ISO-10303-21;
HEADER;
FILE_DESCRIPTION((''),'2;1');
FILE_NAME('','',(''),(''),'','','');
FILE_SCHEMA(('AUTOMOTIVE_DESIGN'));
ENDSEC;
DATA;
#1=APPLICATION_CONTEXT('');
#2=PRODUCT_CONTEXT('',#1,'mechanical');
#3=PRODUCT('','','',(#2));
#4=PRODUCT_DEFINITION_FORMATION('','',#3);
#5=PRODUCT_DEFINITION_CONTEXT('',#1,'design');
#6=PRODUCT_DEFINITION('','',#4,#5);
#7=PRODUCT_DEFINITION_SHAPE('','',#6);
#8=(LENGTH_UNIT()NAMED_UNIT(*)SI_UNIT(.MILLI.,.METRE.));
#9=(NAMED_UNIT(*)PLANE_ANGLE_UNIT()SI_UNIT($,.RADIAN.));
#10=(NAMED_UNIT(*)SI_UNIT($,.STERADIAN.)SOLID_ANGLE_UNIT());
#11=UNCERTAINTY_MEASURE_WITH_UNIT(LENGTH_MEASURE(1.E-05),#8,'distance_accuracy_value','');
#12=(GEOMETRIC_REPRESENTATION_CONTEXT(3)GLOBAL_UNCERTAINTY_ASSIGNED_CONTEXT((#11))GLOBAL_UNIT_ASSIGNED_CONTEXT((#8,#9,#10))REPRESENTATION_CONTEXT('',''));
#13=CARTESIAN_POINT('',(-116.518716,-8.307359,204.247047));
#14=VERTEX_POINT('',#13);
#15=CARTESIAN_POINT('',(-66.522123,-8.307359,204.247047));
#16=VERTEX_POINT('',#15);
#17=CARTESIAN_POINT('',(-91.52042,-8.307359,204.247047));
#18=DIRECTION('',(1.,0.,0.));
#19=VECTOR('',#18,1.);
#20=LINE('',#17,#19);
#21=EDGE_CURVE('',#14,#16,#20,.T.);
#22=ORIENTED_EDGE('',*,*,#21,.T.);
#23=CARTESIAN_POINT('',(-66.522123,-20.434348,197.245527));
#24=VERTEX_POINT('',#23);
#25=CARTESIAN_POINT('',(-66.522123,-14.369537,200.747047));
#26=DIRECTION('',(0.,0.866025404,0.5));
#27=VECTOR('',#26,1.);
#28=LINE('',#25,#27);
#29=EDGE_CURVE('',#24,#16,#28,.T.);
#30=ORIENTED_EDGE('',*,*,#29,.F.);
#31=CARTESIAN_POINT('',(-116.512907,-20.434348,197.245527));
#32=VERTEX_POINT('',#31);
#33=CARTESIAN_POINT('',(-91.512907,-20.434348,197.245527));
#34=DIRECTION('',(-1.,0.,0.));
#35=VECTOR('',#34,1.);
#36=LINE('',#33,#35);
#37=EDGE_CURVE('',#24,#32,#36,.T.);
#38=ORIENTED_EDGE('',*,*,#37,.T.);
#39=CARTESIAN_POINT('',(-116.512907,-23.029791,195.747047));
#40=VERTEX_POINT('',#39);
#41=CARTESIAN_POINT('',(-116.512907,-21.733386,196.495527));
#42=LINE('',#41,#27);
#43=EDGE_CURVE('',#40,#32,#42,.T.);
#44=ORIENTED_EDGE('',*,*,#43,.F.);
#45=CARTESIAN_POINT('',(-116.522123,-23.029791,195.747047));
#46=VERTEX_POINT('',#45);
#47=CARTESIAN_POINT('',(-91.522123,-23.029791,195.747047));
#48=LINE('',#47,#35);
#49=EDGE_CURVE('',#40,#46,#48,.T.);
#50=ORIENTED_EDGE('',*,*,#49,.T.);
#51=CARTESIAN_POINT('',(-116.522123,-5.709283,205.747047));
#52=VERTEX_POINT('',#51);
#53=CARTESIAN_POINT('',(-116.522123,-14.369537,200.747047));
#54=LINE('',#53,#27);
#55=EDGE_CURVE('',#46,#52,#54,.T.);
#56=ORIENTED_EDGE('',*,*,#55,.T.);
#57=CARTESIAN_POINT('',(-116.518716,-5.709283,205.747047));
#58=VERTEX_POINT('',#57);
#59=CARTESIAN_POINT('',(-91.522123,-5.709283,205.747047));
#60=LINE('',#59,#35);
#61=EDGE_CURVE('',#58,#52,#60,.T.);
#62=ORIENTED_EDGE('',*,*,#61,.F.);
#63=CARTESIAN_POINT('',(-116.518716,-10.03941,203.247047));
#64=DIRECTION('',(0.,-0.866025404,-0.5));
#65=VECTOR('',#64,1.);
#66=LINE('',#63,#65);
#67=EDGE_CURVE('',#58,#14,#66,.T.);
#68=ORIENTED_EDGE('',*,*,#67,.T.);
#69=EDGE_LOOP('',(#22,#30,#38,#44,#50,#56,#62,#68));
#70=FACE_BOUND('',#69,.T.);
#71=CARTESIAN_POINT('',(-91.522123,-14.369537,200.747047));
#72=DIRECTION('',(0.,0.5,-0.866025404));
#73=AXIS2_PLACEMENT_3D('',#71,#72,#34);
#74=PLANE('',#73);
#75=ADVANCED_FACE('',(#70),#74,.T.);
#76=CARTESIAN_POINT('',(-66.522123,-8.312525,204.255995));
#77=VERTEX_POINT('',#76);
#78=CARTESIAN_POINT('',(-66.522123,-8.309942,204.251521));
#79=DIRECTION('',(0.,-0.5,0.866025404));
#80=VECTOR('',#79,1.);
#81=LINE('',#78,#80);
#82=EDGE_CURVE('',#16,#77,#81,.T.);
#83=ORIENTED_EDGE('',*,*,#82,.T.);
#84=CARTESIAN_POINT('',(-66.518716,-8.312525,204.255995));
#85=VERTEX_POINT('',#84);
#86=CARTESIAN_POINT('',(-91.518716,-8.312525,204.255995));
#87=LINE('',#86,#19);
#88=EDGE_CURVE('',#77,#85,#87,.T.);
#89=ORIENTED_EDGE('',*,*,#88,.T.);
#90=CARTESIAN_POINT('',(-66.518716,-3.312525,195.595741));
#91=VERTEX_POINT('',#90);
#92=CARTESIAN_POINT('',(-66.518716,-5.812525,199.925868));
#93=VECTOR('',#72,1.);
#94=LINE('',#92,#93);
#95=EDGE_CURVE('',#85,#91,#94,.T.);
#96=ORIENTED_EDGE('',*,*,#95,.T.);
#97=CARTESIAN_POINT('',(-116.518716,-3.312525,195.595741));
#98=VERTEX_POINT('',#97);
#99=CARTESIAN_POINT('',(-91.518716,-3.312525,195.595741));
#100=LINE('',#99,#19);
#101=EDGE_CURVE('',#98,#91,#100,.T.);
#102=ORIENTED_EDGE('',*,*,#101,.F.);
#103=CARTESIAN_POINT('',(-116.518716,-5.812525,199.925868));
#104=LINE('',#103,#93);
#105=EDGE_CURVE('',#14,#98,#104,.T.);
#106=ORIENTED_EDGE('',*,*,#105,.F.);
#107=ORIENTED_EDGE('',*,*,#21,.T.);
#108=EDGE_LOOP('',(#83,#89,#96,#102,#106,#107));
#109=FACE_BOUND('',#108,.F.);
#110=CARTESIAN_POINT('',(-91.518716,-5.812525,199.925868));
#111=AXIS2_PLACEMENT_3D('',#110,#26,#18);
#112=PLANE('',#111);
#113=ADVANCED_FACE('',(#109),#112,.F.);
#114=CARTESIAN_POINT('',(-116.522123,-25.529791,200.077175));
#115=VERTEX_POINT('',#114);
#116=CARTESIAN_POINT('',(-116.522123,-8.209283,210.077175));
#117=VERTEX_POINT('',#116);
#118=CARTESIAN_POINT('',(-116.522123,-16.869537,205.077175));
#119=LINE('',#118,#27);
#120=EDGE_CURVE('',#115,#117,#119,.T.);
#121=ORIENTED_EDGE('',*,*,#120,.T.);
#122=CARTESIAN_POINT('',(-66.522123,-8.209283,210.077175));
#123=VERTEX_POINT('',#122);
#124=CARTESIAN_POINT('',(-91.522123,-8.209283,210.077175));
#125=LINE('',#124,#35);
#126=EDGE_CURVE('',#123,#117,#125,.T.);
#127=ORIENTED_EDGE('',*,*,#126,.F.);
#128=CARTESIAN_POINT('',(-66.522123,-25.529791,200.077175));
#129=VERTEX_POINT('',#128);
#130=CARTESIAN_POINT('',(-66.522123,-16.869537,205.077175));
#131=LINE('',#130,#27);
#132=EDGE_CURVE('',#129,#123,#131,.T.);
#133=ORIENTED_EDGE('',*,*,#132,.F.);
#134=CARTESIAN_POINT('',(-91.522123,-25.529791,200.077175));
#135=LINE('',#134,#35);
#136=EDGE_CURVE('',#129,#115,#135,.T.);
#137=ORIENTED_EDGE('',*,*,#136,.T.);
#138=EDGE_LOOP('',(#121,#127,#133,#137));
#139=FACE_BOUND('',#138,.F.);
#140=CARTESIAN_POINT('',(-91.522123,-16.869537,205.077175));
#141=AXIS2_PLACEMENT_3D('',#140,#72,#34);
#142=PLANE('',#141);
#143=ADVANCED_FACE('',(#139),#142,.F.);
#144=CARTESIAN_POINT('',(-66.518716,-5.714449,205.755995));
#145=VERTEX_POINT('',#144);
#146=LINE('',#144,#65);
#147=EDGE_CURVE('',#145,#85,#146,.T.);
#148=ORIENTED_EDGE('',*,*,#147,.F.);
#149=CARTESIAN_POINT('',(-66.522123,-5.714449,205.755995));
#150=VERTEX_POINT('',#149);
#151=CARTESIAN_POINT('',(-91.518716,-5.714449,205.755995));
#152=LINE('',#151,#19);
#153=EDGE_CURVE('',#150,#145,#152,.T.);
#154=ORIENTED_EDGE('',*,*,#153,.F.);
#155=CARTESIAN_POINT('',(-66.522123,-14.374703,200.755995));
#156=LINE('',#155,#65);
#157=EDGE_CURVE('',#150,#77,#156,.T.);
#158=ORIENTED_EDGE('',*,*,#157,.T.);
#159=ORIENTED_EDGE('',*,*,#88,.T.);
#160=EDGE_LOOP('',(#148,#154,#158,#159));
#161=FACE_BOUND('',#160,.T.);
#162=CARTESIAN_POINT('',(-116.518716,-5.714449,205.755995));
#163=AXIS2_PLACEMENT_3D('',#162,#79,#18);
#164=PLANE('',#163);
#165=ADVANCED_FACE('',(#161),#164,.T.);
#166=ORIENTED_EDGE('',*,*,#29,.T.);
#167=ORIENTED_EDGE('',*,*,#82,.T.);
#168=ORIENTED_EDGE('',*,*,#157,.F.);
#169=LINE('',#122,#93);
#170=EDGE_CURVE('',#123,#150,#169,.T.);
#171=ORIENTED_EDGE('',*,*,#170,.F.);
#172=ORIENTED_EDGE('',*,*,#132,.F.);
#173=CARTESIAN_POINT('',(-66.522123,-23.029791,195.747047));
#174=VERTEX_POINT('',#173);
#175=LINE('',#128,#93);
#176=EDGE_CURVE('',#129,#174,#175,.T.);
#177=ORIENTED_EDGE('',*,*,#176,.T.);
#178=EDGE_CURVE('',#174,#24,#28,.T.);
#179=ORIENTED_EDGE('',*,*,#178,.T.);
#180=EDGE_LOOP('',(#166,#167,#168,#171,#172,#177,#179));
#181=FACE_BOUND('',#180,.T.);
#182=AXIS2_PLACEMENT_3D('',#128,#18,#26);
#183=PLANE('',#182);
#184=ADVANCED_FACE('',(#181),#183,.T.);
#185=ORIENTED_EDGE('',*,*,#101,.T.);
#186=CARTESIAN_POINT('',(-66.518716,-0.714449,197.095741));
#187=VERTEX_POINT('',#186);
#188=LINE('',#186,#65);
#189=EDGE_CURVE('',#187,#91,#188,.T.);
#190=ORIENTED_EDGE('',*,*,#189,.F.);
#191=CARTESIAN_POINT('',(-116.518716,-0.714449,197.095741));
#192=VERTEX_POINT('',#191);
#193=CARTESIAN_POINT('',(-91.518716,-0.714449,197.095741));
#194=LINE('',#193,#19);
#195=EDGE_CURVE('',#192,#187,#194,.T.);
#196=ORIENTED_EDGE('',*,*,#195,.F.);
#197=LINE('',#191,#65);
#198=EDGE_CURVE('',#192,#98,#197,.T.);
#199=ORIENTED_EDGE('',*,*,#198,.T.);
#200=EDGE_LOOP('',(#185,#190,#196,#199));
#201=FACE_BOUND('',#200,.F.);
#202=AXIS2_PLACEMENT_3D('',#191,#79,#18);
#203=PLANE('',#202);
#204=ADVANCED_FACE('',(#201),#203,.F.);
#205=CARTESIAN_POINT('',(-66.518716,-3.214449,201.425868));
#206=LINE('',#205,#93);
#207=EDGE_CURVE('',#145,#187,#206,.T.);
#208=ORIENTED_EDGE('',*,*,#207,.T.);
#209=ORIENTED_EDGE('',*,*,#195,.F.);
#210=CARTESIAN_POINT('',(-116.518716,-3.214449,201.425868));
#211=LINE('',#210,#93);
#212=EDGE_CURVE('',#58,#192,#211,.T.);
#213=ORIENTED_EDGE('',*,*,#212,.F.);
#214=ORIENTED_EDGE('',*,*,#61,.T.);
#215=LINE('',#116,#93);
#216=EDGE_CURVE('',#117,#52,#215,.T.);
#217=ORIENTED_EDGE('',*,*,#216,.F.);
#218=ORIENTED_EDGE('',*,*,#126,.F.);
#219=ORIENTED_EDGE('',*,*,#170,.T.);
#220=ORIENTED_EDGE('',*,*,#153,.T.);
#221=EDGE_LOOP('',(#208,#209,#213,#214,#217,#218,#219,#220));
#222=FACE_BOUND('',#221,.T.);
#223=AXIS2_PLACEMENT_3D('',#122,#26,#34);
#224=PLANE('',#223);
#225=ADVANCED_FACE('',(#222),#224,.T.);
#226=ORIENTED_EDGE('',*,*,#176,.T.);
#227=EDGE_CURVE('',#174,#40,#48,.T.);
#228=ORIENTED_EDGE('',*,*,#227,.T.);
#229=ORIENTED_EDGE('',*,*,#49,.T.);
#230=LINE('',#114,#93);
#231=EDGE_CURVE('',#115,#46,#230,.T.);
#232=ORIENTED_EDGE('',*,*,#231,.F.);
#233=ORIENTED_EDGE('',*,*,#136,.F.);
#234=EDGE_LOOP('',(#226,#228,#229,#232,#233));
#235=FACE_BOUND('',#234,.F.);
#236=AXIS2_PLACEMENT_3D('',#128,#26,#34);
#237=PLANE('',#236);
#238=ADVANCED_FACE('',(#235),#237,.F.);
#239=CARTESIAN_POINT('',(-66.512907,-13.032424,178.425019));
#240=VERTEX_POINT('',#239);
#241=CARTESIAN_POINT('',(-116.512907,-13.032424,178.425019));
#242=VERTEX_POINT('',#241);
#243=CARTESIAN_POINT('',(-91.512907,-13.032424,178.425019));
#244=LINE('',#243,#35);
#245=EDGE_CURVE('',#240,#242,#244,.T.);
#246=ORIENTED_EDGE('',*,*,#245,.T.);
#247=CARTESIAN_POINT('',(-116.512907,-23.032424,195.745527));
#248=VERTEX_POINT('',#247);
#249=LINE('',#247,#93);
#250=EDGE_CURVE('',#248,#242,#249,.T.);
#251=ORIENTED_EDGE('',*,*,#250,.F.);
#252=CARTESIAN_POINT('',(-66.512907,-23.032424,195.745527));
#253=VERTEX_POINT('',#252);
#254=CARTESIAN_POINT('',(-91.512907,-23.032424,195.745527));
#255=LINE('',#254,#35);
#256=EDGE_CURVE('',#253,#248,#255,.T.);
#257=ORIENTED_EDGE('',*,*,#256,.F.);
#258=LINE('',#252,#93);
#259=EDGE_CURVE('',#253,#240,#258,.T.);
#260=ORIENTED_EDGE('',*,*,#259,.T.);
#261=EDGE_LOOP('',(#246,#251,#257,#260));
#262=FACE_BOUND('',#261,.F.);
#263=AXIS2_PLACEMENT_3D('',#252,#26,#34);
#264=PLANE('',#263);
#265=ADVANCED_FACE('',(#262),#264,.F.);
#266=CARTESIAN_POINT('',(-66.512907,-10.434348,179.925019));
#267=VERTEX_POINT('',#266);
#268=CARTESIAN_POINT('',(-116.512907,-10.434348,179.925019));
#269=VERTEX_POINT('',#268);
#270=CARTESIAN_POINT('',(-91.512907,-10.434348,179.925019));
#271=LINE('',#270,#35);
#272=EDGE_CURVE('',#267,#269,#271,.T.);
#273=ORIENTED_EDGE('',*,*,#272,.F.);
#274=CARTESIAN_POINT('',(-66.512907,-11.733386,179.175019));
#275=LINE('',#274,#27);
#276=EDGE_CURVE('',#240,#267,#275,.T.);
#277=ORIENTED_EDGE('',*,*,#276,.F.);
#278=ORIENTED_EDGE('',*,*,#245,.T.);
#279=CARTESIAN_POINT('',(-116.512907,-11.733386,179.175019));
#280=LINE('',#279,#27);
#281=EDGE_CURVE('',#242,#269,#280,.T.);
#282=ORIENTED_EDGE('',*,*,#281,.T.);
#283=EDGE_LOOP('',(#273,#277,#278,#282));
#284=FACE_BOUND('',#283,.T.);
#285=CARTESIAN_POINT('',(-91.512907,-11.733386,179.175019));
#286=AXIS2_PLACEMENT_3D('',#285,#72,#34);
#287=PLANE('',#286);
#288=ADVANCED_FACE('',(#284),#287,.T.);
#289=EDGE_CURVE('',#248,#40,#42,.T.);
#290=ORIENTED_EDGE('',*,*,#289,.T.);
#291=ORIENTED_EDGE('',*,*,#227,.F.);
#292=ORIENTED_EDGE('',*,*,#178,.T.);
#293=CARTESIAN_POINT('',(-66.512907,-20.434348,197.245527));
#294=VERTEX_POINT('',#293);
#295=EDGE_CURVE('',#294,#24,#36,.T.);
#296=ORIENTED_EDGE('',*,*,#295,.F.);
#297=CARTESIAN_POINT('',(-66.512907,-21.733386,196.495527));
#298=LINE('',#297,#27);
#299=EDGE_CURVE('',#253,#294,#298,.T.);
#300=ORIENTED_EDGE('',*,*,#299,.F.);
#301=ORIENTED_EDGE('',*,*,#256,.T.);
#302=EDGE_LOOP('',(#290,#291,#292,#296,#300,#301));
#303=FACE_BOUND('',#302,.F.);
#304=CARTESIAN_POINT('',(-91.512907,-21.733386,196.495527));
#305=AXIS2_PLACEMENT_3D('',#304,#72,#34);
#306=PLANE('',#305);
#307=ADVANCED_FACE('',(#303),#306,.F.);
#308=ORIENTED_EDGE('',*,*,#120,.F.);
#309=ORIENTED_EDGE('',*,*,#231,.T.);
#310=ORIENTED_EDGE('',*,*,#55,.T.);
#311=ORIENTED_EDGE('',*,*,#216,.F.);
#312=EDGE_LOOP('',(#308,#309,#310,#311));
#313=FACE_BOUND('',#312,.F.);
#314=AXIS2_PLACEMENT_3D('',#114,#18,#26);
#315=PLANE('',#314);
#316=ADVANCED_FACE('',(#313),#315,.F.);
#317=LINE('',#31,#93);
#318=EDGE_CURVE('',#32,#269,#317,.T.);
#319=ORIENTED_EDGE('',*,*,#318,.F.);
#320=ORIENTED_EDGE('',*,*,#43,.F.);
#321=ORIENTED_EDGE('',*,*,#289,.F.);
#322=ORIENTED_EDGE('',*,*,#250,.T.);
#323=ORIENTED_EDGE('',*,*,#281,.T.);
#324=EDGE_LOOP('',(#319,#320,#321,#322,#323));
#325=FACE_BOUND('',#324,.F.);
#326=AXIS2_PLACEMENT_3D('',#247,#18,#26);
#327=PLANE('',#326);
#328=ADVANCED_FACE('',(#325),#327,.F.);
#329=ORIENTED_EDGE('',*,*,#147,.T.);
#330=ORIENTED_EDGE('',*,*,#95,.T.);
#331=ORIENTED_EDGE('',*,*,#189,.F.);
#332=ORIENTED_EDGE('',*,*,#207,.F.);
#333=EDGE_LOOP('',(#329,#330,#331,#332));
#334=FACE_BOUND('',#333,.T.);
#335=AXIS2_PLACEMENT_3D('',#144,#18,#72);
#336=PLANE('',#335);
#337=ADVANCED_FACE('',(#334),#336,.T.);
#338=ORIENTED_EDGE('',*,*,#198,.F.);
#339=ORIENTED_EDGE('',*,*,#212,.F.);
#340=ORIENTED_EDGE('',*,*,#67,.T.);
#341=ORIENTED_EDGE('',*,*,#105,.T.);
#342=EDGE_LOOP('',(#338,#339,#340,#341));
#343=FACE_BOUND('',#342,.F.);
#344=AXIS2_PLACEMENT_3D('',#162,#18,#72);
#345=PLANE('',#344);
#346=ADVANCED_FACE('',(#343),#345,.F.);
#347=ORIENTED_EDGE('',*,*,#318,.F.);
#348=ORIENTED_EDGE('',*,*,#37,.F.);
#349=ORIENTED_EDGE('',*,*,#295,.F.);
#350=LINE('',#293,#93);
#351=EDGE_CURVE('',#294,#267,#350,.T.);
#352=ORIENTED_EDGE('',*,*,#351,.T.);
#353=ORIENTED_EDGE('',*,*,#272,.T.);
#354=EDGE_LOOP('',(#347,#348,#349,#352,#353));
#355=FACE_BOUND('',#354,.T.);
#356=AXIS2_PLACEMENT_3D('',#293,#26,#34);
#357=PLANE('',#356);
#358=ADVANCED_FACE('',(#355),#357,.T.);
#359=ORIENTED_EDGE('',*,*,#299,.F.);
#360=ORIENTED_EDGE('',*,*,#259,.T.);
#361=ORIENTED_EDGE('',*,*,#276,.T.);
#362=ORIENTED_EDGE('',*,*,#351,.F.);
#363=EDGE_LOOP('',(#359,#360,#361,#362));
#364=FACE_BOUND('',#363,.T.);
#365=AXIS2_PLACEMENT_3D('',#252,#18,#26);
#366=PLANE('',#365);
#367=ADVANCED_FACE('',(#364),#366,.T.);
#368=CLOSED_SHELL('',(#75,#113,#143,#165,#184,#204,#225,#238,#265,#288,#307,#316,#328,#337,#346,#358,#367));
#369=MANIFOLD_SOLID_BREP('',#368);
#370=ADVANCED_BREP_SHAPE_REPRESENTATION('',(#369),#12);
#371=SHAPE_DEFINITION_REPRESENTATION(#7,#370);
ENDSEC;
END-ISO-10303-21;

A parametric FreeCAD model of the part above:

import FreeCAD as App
import Part
import Sketcher
Q = App.Units.Quantity

doc = App.newDocument("Part")
params = doc.addObject("Spreadsheet::Sheet", "Params")
for row, (alias, value) in enumerate([
    ("sketch1_width", "50 mm"),
    ("sketch1_height", "20 mm"),
    ("pad1_length", "5 mm"),
    ("sketch2_width", "50 mm"),
    ("sketch2_height", "3 mm"),
    ("pad2_length", "20 mm"),
    ("sketch3_width", "50 mm"),
    ("sketch3_height", "10 mm"),
    ("pad3_length", "3 mm"),
], start=1):
    params.set(f"A{row}", alias)
    params.set(f"B{row}", "=" + value)
    params.setAlias(f"B{row}", alias)

body = doc.addObject("PartDesign::Body", "Body")

sketch1 = doc.addObject("Sketcher::SketchObject", "Sketch")
body.addObject(sketch1)
sketch1.AttachmentSupport = (doc.XY_Plane, [""])
sketch1.MapMode = "FlatFace"
sketch1.addGeometry([
    Part.LineSegment(App.Vector(160, -114, 0), App.Vector(160, -134, 0)),
    Part.LineSegment(App.Vector(160, -134, 0), App.Vector(210, -134, 0)),
    Part.LineSegment(App.Vector(210, -134, 0), App.Vector(210, -114, 0)),
    Part.LineSegment(App.Vector(210, -114, 0), App.Vector(160, -114, 0)),
], False)
sketch1.addConstraint([
    Sketcher.Constraint("Coincident", 0, 2, 1, 1),
    Sketcher.Constraint("Coincident", 1, 2, 2, 1),
    Sketcher.Constraint("Coincident", 2, 2, 3, 1),
    Sketcher.Constraint("Coincident", 3, 2, 0, 1),
    Sketcher.Constraint("Vertical", 0),
    Sketcher.Constraint("Horizontal", 1),
    Sketcher.Constraint("Vertical", 2),
    Sketcher.Constraint("Horizontal", 3),
    Sketcher.Constraint("DistanceX", 1, 1, 1, 2, Q("50 mm")),
    Sketcher.Constraint("DistanceY", 0, 2, 0, 1, Q("20 mm")),
    Sketcher.Constraint("DistanceY", 0, 2, -1, 1, Q("133.914059 mm")),
    Sketcher.Constraint("DistanceX", -1, 1, 0, 2, Q("159.845276 mm")),
])
sketch1.setExpression("Constraints[8]", "Params.sketch1_width")
sketch1.setExpression("Constraints[9]", "Params.sketch1_height")
pad1 = doc.addObject("PartDesign::Pad", "Pad")
body.addObject(pad1)
pad1.Profile = sketch1
pad1.setExpression("Length", "Params.pad1_length")

sketch2 = doc.addObject("Sketcher::SketchObject", "Sketch001")
body.addObject(sketch2)
sketch2.AttachmentSupport = (doc.XY_Plane, [""])
sketch2.MapMode = "FlatFace"
sketch2.AttachmentOffset = App.Placement(App.Vector(0, 0, 5), App.Rotation())
sketch2.addGeometry([
    Part.LineSegment(App.Vector(159.8, -130.9, 0), App.Vector(159.8, -133.9, 0)),
    Part.LineSegment(App.Vector(159.8, -133.9, 0), App.Vector(209.8, -133.9, 0)),
    Part.LineSegment(App.Vector(209.8, -133.9, 0), App.Vector(209.8, -130.9, 0)),
    Part.LineSegment(App.Vector(209.8, -130.9, 0), App.Vector(159.8, -130.9, 0)),
], False)
sketch2.addConstraint([
    Sketcher.Constraint("Coincident", 0, 2, 1, 1),
    Sketcher.Constraint("Coincident", 1, 2, 2, 1),
    Sketcher.Constraint("Coincident", 2, 2, 3, 1),
    Sketcher.Constraint("Coincident", 3, 2, 0, 1),
    Sketcher.Constraint("Vertical", 0),
    Sketcher.Constraint("Horizontal", 1),
    Sketcher.Constraint("Vertical", 2),
    Sketcher.Constraint("Horizontal", 3),
    Sketcher.Constraint("DistanceX", 1, 1, 1, 2, Q("50 mm")),
    Sketcher.Constraint("DistanceY", 0, 2, 0, 1, Q("3 mm")),
    Sketcher.Constraint("DistanceY", 0, 2, -1, 1, Q("133.917099 mm")),
    Sketcher.Constraint("DistanceX", -1, 1, 0, 2, Q("159.83606 mm")),
])
sketch2.setExpression("Constraints[8]", "Params.sketch2_width")
sketch2.setExpression("Constraints[9]", "Params.sketch2_height")
pad2 = doc.addObject("PartDesign::Pad", "Pad001")
body.addObject(pad2)
pad2.Profile = sketch2
pad2.setExpression("Length", "Params.pad2_length")

sketch3 = doc.addObject("Sketcher::SketchObject", "Sketch002")
body.addObject(sketch3)
sketch3.AttachmentSupport = (doc.XZ_Plane, [""])
sketch3.MapMode = "FlatFace"
sketch3.AttachmentOffset = App.Placement(App.Vector(0, 0, 113.914059), App.Rotation())
sketch3.addGeometry([
    Part.LineSegment(App.Vector(210, 15, 0), App.Vector(210, 5, 0)),
    Part.LineSegment(App.Vector(210, 5, 0), App.Vector(160, 5, 0)),
    Part.LineSegment(App.Vector(160, 5, 0), App.Vector(160, 15, 0)),
    Part.LineSegment(App.Vector(160, 15, 0), App.Vector(210, 15, 0)),
], False)
sketch3.addConstraint([
    Sketcher.Constraint("Coincident", 0, 2, 1, 1),
    Sketcher.Constraint("Coincident", 1, 2, 2, 1),
    Sketcher.Constraint("Coincident", 2, 2, 3, 1),
    Sketcher.Constraint("Coincident", 3, 2, 0, 1),
    Sketcher.Constraint("Vertical", 0),
    Sketcher.Constraint("Horizontal", 1),
    Sketcher.Constraint("Vertical", 2),
    Sketcher.Constraint("Horizontal", 3),
    Sketcher.Constraint("DistanceX", 1, 2, 1, 1, Q("50 mm")),
    Sketcher.Constraint("DistanceY", 0, 2, 0, 1, Q("10 mm")),
    Sketcher.Constraint("DistanceX", -1, 1, 0, 2, Q("209.841869 mm")),
    Sketcher.Constraint("DistanceY", -1, 1, 0, 2, Q("4.989668 mm")),
])
sketch3.setExpression("Constraints[8]", "Params.sketch3_width")
sketch3.setExpression("Constraints[9]", "Params.sketch3_height")
pad3 = doc.addObject("PartDesign::Pad", "Pad002")
body.addObject(pad3)
pad3.Profile = sketch3
pad3.setExpression("Length", "Params.pad3_length")
body2 = doc.addObject("PartDesign::Body", "Body001")
doc.recompute()

body.Placement = App.Placement(App.Vector(0, 0, 0), App.Rotation(App.Vector(1, 0, 0), 150))
boolean = doc.addObject("PartDesign::Boolean", "Boolean")
body2.addObject(boolean)
boolean.Type = "Fuse"
boolean.addObjects([body])
body3 = doc.addObject("PartDesign::Body", "Body002")
doc.recompute()

body2.Placement = App.Placement(App.Vector(93.323153, 90.443186, 267.034204), App.Rotation(App.Vector(0, 0, 1), 180))
boolean2 = doc.addObject("PartDesign::Boolean", "Boolean001")
body3.addObject(boolean2)
boolean2.Type = "Fuse"
boolean2.addObjects([body2])

doc.recompute()
